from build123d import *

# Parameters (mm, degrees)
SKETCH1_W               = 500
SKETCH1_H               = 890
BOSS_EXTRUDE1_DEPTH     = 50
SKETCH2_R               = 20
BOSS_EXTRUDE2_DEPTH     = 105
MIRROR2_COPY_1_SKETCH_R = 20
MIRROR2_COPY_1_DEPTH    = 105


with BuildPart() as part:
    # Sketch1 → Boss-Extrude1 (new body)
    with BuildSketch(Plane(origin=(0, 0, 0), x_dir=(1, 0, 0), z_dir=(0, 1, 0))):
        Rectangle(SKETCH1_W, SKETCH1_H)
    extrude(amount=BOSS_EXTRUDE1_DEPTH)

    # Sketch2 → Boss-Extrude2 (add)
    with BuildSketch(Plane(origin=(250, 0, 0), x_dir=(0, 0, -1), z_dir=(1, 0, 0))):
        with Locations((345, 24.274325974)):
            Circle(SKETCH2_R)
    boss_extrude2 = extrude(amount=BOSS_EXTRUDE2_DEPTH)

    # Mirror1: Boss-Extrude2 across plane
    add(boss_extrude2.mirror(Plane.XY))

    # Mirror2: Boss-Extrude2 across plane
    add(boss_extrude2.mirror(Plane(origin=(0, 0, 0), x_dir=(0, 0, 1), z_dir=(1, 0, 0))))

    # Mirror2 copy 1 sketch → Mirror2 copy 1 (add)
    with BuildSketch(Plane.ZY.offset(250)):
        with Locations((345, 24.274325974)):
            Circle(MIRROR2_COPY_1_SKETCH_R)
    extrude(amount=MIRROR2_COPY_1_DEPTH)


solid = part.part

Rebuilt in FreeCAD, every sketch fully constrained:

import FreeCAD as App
import Part
import Sketcher
Q = App.Units.Quantity


def add_polygon(sketch, points):
    """Adds a closed chain of lines whose ends are joined by coincident constraints."""
    first, n = sketch.GeometryCount, len(points)
    for a, b in zip(points, points[1:] + points[:1]):
        sketch.addGeometry(Part.LineSegment(App.Vector(*a, 0), App.Vector(*b, 0)), False)
    for i in range(n):
        sketch.addConstraint(Sketcher.Constraint("Coincident", first + i, 2, first + (i + 1) % n, 1))

doc = App.newDocument("Part")
body = doc.addObject("PartDesign::Body", "Body")

# Sketch on XZ plane
sketch1 = body.newObject("Sketcher::SketchObject", "Sketch")
sketch1.AttachmentSupport = (doc.getObject("XZ_Plane"), [""])
sketch1.MapMode = "FlatFace"
add_polygon(sketch1, [(-250, -445), (-250, 445), (250, 445), (250, -445)])  # lines 0-3
sketch1.addConstraint([
    Sketcher.Constraint("Vertical", 0),
    Sketcher.Constraint("Horizontal", 1),
    Sketcher.Constraint("Vertical", 2),
    Sketcher.Constraint("Horizontal", 3),
    Sketcher.Constraint("Symmetric", 0, 2, 2, 2, -1, 1),
    Sketcher.Constraint("DistanceX", 1, 1, 1, 2, Q("500 mm")),
    Sketcher.Constraint("DistanceY", 0, 1, 0, 2, Q("890 mm")),
])
pad1 = body.newObject("PartDesign::Pad", "Pad")
pad1.Profile = sketch1
pad1.Length = 50
pad1.Reversed = True

# Sketch on YZ plane
sketch2 = body.newObject("Sketcher::SketchObject", "Sketch001")
sketch2.AttachmentSupport = (doc.getObject("YZ_Plane"), [""])
sketch2.MapMode = "FlatFace"
sketch2.AttachmentOffset = App.Placement(App.Vector(0, 0, 250), App.Rotation())
sketch2.addGeometry(Part.Circle(App.Vector(24.274326, -345, 0), App.Vector(0, 0, 1), 20), False)
sketch2.addConstraint([
    Sketcher.Constraint("Diameter", 0, Q("40 mm")),
    Sketcher.Constraint("DistanceY", 0, 3, -1, 1, Q("345 mm")),
    Sketcher.Constraint("DistanceX", -1, 1, 0, 3, Q("24.274326 mm")),
])
pad2 = body.newObject("PartDesign::Pad", "Pad001")
pad2.Profile = sketch2
pad2.Length = 105
doc.recompute()

mirrored = body.newObject("PartDesign::Mirrored", "Mirrored")
mirrored.Originals = [pad2]
mirrored.MirrorPlane = (doc.getObject("XY_Plane"), [""])
body.Tip = mirrored
doc.recompute()

mirrored2 = body.newObject("PartDesign::Mirrored", "Mirrored001")
mirrored2.Originals = [pad2]
mirrored2.MirrorPlane = (doc.getObject("YZ_Plane"), [""])
body.Tip = mirrored2

# Sketch on YZ plane
sketch3 = body.newObject("Sketcher::SketchObject", "Sketch002")
sketch3.AttachmentSupport = (doc.getObject("YZ_Plane"), [""])
sketch3.MapMode = "FlatFace"
sketch3.AttachmentOffset = App.Placement(App.Vector(0, 0, -250), App.Rotation())
sketch3.addGeometry(Part.Circle(App.Vector(24.274326, 345, 0), App.Vector(0, 0, 1), 20), False)
sketch3.addConstraint([
    Sketcher.Constraint("Diameter", 0, Q("40 mm")),
    Sketcher.Constraint("DistanceY", -1, 1, 0, 3, Q("345 mm")),
    Sketcher.Constraint("DistanceX", -1, 1, 0, 3, Q("24.274326 mm")),
])
pad3 = body.newObject("PartDesign::Pad", "Pad002")
pad3.Profile = sketch3
pad3.Length = 105
pad3.Reversed = True

doc.recompute()
